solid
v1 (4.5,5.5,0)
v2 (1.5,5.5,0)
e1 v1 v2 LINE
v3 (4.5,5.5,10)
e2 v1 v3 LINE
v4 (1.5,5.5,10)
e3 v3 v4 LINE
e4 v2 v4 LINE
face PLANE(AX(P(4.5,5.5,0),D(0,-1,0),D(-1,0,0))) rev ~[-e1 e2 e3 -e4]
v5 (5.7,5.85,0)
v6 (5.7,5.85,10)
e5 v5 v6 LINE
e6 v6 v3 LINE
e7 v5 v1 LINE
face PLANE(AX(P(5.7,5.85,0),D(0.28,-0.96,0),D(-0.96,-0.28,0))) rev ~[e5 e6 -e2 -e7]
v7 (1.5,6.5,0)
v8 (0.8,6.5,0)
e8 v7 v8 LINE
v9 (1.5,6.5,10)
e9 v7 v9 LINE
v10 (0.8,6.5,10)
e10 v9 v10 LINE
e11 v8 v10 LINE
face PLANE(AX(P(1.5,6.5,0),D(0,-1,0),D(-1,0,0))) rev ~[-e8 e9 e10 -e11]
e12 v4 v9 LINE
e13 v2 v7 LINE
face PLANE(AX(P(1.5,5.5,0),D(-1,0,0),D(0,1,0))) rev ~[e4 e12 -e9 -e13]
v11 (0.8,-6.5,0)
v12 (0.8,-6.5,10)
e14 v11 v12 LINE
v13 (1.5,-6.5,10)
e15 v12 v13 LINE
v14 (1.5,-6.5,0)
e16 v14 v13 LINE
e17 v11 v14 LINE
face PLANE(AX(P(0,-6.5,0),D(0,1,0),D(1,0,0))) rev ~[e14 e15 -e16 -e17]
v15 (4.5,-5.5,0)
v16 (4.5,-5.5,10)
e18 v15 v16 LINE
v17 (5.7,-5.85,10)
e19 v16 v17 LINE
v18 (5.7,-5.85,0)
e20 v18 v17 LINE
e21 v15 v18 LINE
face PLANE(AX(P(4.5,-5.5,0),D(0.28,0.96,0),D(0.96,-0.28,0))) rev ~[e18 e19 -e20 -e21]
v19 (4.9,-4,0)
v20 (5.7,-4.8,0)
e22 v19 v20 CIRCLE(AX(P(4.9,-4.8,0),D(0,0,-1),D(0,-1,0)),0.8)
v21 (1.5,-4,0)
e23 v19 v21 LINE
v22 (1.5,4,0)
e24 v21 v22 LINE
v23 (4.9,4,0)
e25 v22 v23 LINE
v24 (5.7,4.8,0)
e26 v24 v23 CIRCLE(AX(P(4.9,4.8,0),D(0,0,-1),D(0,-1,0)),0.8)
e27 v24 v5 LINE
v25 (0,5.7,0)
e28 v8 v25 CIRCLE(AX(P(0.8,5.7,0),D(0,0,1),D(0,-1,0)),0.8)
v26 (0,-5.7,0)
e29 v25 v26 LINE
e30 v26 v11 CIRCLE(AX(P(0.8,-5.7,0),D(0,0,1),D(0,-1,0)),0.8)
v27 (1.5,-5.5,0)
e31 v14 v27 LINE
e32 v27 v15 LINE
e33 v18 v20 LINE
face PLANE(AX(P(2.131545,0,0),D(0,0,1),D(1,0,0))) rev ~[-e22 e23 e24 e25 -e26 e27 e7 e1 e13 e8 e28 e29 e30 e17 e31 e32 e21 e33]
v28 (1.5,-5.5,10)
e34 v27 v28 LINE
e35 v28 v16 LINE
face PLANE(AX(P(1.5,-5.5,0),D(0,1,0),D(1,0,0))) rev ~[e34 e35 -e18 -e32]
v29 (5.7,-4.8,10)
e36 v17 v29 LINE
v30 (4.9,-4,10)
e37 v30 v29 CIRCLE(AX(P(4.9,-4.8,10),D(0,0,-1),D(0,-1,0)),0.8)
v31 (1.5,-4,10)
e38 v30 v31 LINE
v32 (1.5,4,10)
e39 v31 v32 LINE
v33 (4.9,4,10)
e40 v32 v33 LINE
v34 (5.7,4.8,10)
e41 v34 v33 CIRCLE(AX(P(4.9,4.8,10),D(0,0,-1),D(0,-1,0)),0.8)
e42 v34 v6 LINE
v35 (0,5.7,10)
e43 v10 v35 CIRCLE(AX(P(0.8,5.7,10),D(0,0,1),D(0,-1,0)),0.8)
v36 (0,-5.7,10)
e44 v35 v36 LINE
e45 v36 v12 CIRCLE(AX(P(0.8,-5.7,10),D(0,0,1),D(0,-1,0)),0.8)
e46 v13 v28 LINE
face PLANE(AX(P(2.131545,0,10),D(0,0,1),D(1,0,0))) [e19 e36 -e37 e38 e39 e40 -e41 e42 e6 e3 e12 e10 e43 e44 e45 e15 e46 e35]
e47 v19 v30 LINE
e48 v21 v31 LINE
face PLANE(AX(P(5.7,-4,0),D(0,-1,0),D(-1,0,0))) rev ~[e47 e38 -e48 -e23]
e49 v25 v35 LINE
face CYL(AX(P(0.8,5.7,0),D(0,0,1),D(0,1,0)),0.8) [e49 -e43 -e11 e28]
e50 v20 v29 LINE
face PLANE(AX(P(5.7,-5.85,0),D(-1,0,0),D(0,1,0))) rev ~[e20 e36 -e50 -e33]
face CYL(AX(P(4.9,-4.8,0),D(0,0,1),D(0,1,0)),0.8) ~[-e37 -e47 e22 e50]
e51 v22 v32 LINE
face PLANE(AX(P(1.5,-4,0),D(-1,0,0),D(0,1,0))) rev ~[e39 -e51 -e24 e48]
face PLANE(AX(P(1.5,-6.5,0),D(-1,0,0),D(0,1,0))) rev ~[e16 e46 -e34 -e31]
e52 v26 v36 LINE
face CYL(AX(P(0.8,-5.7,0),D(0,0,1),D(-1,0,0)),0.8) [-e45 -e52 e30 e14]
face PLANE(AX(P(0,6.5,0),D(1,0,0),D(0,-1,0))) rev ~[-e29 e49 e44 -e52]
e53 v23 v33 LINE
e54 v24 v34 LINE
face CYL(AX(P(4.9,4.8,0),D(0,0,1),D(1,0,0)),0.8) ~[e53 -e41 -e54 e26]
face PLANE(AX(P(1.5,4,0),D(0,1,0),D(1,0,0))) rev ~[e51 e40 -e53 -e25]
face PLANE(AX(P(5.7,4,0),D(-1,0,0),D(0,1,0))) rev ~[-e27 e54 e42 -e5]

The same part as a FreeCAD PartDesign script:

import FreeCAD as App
import Part
import Sketcher
from FreeCAD import Vector
Q = App.Units.Quantity


def edges_at(feature, points):
    """Names of the edges that pass closest to the given points."""
    edges = feature.Shape.Edges
    near = lambda p: min(range(len(edges)), key=lambda i: edges[i].distToShape(Part.Vertex(*p))[0])
    return sorted({f"Edge{near(p) + 1}" for p in points})


def add_polygon(sketch, points):
    """Adds a closed chain of lines whose ends are joined by coincident constraints."""
    first, n = sketch.GeometryCount, len(points)
    for a, b in zip(points, points[1:] + points[:1]):
        sketch.addGeometry(Part.LineSegment(App.Vector(*a, 0), App.Vector(*b, 0)), False)
    for i in range(n):
        sketch.addConstraint(Sketcher.Constraint("Coincident", first + i, 2, first + (i + 1) % n, 1))

doc = App.newDocument("Part")
params = doc.addObject("Spreadsheet::Sheet", "Params")
for row, (alias, value) in enumerate([
    ("sketch1_width", "3 mm"),
    ("sketch1_height", "8 mm"),
    ("sketch1_height2", "1 mm"),
    ("sketch1_height3", "13 mm"),
    ("sketch1_width2", "4.2 mm"),
    ("pad1_length", "10 mm"),
    ("fillet_radius", "0.8 mm"),
    ("fillet2_radius", "0.8 mm"),
], start=1):
    params.set(f"A{row}", alias)
    params.set(f"B{row}", "=" + value)
    params.setAlias(f"B{row}", alias)

body = doc.addObject("PartDesign::Body", "Body")

# Sketch on XY plane
sketch1 = body.newObject("Sketcher::SketchObject", "Sketch")
sketch1.AttachmentSupport = (doc.getObject("XY_Plane"), [""])
sketch1.MapMode = "FlatFace"
add_polygon(sketch1, [(5.7, -5.8), (5.7, -4), (1.5, -4), (1.5, 4), (5.7, 4), (5.7, 5.8), (4.5, 5.5), (1.5, 5.5), (1.5, 6.5), (0, 6.5), (0, -6.5), (1.5, -6.5), (1.5, -5.5), (4.5, -5.5)])  # lines 0-13
sketch1.addConstraint(Sketcher.Constraint("Vertical", 0))
sketch1.addConstraint(Sketcher.Constraint("Horizontal", 1))
sketch1.addConstraint(Sketcher.Constraint("Vertical", 2))
sketch1.addConstraint(Sketcher.Constraint("Horizontal", 3))
sketch1.addConstraint(Sketcher.Constraint("Vertical", 4))
sketch1.addConstraint(Sketcher.Constraint("Horizontal", 6))
sketch1.addConstraint(Sketcher.Constraint("Vertical", 7))
sketch1.addConstraint(Sketcher.Constraint("Horizontal", 8))
sketch1.addConstraint(Sketcher.Constraint("Vertical", 9))
sketch1.addConstraint(Sketcher.Constraint("Horizontal", 10))
sketch1.addConstraint(Sketcher.Constraint("Vertical", 11))
sketch1.addConstraint(Sketcher.Constraint("Horizontal", 12))
sketch1.addConstraint(Sketcher.Constraint("Symmetric", 8, 2, 9, 2, -1, 1))
sketch1.addConstraint(Sketcher.Constraint("Symmetric", 0, 2, 3, 2, -1))
sketch1.addConstraint(Sketcher.Constraint("Symmetric", 6, 2, 11, 2, -1))
sketch1.addConstraint(Sketcher.Constraint("Vertical", 2, 2, 6, 2))
sketch1.addConstraint(Sketcher.Constraint("Vertical", 5, 2, 12, 2))
sketch1.addConstraint(Sketcher.Constraint("Equal", 0, 4))
sketch1.addConstraint(Sketcher.Constraint("DistanceX", 6, 2, 6, 1, Q("3 mm")))
sketch1.addConstraint(Sketcher.Constraint("DistanceY", 2, 1, 2, 2, Q("8 mm")))
sketch1.addConstraint(Sketcher.Constraint("DistanceY", 7, 1, 7, 2, Q("1 mm")))
sketch1.addConstraint(Sketcher.Constraint("DistanceY", 9, 2, 9, 1, Q("13 mm")))
sketch1.addConstraint(Sketcher.Constraint("DistanceX", 1, 2, 1, 1, Q("4.2 mm")))
sketch1.addConstraint(Sketcher.Constraint("DistanceX", 8, 2, 8, 1, Q("1.5 mm")))
sketch1.addConstraint(Sketcher.Constraint("DistanceY", 0, 1, 0, 2, Q("1.85 mm")))
sketch1.setExpression("Constraints[32]", "Params.sketch1_width")
sketch1.setExpression("Constraints[33]", "Params.sketch1_height")
sketch1.setExpression("Constraints[34]", "Params.sketch1_height2")
sketch1.setExpression("Constraints[35]", "Params.sketch1_height3")
sketch1.setExpression("Constraints[36]", "Params.sketch1_width2")
pad1 = body.newObject("PartDesign::Pad", "Pad")
pad1.Profile = sketch1
pad1.setExpression("Length", "Params.pad1_length")
doc.recompute()

fillet = body.newObject("PartDesign::Fillet", "Fillet")
fillet.Base = (pad1, edges_at(pad1, [(0, 6.5, 5), (0, -6.5, 5)]))
fillet.setExpression("Radius", "Params.fillet_radius")
doc.recompute()

fillet2 = body.newObject("PartDesign::Fillet", "Fillet001")
fillet2.Base = (fillet, edges_at(fillet, [(5.7, 4, 5), (5.7, -4, 5)]))
fillet2.setExpression("Radius", "Params.fillet2_radius")

doc.recompute()
